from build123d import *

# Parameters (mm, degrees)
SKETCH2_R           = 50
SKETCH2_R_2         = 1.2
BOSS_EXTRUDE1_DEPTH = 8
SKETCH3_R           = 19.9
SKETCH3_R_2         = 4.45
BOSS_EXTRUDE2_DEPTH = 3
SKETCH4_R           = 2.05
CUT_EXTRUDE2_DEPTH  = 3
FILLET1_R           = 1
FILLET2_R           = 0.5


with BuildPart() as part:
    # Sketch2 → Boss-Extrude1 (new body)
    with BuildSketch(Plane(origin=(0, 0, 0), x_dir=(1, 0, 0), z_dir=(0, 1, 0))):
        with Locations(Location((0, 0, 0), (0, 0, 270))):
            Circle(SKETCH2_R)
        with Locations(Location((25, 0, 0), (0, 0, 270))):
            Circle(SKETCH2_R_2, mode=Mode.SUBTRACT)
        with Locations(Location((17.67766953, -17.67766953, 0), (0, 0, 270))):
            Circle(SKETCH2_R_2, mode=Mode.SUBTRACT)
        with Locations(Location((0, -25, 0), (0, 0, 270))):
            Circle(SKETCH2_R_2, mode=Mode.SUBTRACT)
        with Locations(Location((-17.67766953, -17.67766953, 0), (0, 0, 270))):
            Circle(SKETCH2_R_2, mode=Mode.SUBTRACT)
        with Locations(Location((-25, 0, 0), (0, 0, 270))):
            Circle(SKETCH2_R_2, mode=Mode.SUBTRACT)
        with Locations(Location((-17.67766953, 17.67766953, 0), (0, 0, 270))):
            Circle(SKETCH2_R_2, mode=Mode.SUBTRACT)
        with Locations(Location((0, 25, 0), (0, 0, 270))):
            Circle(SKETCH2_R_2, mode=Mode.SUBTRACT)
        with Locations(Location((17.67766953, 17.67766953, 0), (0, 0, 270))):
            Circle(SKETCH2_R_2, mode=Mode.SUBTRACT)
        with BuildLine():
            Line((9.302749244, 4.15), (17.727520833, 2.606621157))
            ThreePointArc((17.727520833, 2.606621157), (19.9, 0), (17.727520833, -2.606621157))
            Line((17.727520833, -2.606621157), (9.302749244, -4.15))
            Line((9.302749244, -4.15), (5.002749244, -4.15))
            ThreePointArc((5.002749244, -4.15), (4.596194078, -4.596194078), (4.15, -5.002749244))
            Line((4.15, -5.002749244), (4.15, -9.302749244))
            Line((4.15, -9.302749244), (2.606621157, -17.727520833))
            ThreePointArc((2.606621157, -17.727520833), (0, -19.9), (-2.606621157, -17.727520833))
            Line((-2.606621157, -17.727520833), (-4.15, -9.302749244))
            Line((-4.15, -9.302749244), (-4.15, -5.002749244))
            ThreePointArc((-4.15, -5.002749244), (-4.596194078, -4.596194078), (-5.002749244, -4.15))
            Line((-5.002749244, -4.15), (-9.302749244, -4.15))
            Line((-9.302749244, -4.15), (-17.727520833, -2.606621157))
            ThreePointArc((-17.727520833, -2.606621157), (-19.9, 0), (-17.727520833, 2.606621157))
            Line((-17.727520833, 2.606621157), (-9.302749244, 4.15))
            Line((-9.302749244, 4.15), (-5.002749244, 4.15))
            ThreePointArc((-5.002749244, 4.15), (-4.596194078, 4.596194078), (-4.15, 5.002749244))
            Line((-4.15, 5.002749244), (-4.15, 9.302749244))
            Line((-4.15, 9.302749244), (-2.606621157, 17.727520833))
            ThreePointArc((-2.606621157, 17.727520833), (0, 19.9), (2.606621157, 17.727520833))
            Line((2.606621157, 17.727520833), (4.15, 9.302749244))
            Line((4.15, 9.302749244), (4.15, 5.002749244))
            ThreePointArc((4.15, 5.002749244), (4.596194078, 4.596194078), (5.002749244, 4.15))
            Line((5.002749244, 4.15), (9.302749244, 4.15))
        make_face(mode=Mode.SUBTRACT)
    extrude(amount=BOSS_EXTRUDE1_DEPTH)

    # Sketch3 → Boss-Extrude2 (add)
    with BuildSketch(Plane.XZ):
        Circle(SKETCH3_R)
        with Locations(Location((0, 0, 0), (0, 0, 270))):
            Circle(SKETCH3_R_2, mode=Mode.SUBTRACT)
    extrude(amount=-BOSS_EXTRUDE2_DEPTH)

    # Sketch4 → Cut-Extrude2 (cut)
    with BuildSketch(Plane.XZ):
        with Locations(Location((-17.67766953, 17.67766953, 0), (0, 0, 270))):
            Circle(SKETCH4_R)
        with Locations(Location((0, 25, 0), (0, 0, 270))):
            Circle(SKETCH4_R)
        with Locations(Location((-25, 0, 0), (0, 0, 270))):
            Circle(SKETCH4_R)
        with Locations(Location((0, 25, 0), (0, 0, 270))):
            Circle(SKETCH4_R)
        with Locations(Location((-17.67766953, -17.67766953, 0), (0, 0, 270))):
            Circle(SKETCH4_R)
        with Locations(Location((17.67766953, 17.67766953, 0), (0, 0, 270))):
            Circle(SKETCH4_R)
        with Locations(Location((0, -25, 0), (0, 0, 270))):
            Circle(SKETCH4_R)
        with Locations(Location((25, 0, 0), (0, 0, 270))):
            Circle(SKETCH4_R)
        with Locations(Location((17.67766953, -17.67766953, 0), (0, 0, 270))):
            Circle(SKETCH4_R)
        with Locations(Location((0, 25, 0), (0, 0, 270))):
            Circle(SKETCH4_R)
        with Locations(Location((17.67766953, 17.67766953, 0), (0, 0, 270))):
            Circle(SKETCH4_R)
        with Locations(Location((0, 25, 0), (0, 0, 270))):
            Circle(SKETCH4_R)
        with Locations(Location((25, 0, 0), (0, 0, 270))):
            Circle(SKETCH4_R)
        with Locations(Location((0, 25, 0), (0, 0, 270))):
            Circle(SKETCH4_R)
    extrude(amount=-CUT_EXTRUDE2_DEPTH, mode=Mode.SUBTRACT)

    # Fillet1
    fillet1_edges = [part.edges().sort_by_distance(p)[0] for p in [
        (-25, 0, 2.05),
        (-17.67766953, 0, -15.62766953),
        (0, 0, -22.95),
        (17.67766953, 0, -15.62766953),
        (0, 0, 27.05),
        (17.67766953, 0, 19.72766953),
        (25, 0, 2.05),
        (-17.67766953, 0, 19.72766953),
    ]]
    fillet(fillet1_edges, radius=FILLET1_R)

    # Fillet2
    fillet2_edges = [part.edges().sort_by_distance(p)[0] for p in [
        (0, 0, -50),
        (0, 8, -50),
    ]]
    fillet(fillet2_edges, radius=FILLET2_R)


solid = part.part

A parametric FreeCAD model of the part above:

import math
import FreeCAD as App
import Part
import Sketcher

V = App.Vector
Q = App.Units.Quantity


def edges_at(feature, points):
    """Names of the edges that pass closest to the given points."""
    edges = feature.Shape.Edges
    near = lambda p: min(range(len(edges)), key=lambda i: edges[i].distToShape(Part.Vertex(*p))[0])
    return sorted({f"Edge{near(p) + 1}" for p in points})

doc = App.newDocument("Part")
body = doc.addObject("PartDesign::Body", "Body")

sketch1 = body.newObject("Sketcher::SketchObject", "Sketch")
sketch1.AttachmentSupport = (doc.getObject("XZ_Plane"), [""])
sketch1.MapMode = "FlatFace"
sketch1.addGeometry(Part.Circle(V(0, 0, 0), V(0, 0, 1), 50), False)
sketch1.addGeometry(Part.Circle(V(-17.7, -17.7, 0), V(0, 0, 1), 1.2), False)
sketch1.addGeometry(Part.Circle(V(0, -25, 0), V(0, 0, 1), 1.2), False)
sketch1.addGeometry(Part.Circle(V(-25, 0, 0), V(0, 0, 1), 1.2), False)
sketch1.addGeometry(Part.Circle(V(-17.7, 17.7, 0), V(0, 0, 1), 1.2), False)
sketch1.addGeometry(Part.Circle(V(17.7, -17.7, 0), V(0, 0, 1), 1.2), False)
sketch1.addGeometry(Part.Circle(V(25, 0, 0), V(0, 0, 1), 1.2), False)
sketch1.addGeometry(Part.LineSegment(V(5, -4.2, 0), V(9.3, -4.2, 0)), False)
sketch1.addGeometry(Part.LineSegment(V(9.3, -4.2, 0), V(17.7, -2.6, 0)), False)
sketch1.addGeometry(Part.ArcOfCircle(Part.Circle(V(17.2, 0, 0), V(0, 0, 1), 2.6), math.radians(-80), math.radians(80)), False)
sketch1.addGeometry(Part.LineSegment(V(17.7, 2.6, 0), V(9.3, 4.2, 0)), False)
sketch1.addGeometry(Part.LineSegment(V(9.3, 4.2, 0), V(5, 4.2, 0)), False)
sketch1.addGeometry(Part.ArcOfCircle(Part.Circle(V(0, 0, 0), V(0, 0, 1), 6.5), math.radians(39.68), math.radians(50.32)), False)
sketch1.addGeometry(Part.LineSegment(V(4.2, 5, 0), V(4.2, 9.3, 0)), False)
sketch1.addGeometry(Part.LineSegment(V(4.2, 9.3, 0), V(2.6, 17.7, 0)), False)
sketch1.addGeometry(Part.ArcOfCircle(Part.Circle(V(0, 17.2, 0), V(0, 0, 1), 2.6), math.radians(10), math.radians(170)), False)
sketch1.addGeometry(Part.LineSegment(V(-2.6, 17.7, 0), V(-4.2, 9.3, 0)), False)
sketch1.addGeometry(Part.LineSegment(V(-4.2, 9.3, 0), V(-4.2, 5, 0)), False)
sketch1.addGeometry(Part.ArcOfCircle(Part.Circle(V(0, 0, 0), V(0, 0, 1), 6.5), math.radians(129.68), math.radians(140.32)), False)
sketch1.addGeometry(Part.LineSegment(V(-5, 4.2, 0), V(-9.3, 4.2, 0)), False)
sketch1.addGeometry(Part.LineSegment(V(-9.3, 4.2, 0), V(-17.7, 2.6, 0)), False)
sketch1.addGeometry(Part.ArcOfCircle(Part.Circle(V(-17.2, 0, 0), V(0, 0, 1), 2.6), math.radians(100), math.radians(260)), False)
sketch1.addGeometry(Part.LineSegment(V(-17.7, -2.6, 0), V(-9.3, -4.2, 0)), False)
sketch1.addGeometry(Part.LineSegment(V(-9.3, -4.2, 0), V(-5, -4.2, 0)), False)
sketch1.addGeometry(Part.ArcOfCircle(Part.Circle(V(0, 0, 0), V(0, 0, 1), 6.5), math.radians(-140.32), math.radians(-129.68)), False)
sketch1.addGeometry(Part.LineSegment(V(-4.2, -5, 0), V(-4.2, -9.3, 0)), False)
sketch1.addGeometry(Part.LineSegment(V(-4.2, -9.3, 0), V(-2.6, -17.7, 0)), False)
sketch1.addGeometry(Part.ArcOfCircle(Part.Circle(V(0, -17.2, 0), V(0, 0, 1), 2.6), math.radians(-170), math.radians(-10)), False)
sketch1.addGeometry(Part.LineSegment(V(2.6, -17.7, 0), V(4.2, -9.3, 0)), False)
sketch1.addGeometry(Part.LineSegment(V(4.2, -9.3, 0), V(4.2, -5, 0)), False)
sketch1.addGeometry(Part.ArcOfCircle(Part.Circle(V(0, 0, 0), V(0, 0, 1), 6.5), math.radians(-50.32), math.radians(-39.68)), False)
sketch1.addGeometry(Part.Circle(V(0, 25, 0), V(0, 0, 1), 1.2), False)
sketch1.addGeometry(Part.Circle(V(17.7, 17.7, 0), V(0, 0, 1), 1.2), False)
sketch1.addConstraint(Sketcher.Constraint("Coincident", 7, 2, 8, 1))
sketch1.addConstraint(Sketcher.Constraint("Tangent", 8, 2, 9, 1))
sketch1.addConstraint(Sketcher.Constraint("Tangent", 9, 2, 10, 1))
sketch1.addConstraint(Sketcher.Constraint("Coincident", 10, 2, 11, 1))
sketch1.addConstraint(Sketcher.Constraint("Coincident", 11, 2, 12, 1))
sketch1.addConstraint(Sketcher.Constraint("Coincident", 12, 2, 13, 1))
sketch1.addConstraint(Sketcher.Constraint("Coincident", 13, 2, 14, 1))
sketch1.addConstraint(Sketcher.Constraint("Tangent", 14, 2, 15, 1))
sketch1.addConstraint(Sketcher.Constraint("Tangent", 15, 2, 16, 1))
sketch1.addConstraint(Sketcher.Constraint("Coincident", 16, 2, 17, 1))
sketch1.addConstraint(Sketcher.Constraint("Coincident", 17, 2, 18, 1))
sketch1.addConstraint(Sketcher.Constraint("Coincident", 18, 2, 19, 1))
sketch1.addConstraint(Sketcher.Constraint("Coincident", 19, 2, 20, 1))
sketch1.addConstraint(Sketcher.Constraint("Tangent", 20, 2, 21, 1))
sketch1.addConstraint(Sketcher.Constraint("Tangent", 21, 2, 22, 1))
sketch1.addConstraint(Sketcher.Constraint("Coincident", 22, 2, 23, 1))
sketch1.addConstraint(Sketcher.Constraint("Coincident", 23, 2, 24, 1))
sketch1.addConstraint(Sketcher.Constraint("Coincident", 24, 2, 25, 1))
sketch1.addConstraint(Sketcher.Constraint("Coincident", 25, 2, 26, 1))
sketch1.addConstraint(Sketcher.Constraint("Tangent", 26, 2, 27, 1))
sketch1.addConstraint(Sketcher.Constraint("Tangent", 27, 2, 28, 1))
sketch1.addConstraint(Sketcher.Constraint("Coincident", 28, 2, 29, 1))
sketch1.addConstraint(Sketcher.Constraint("Coincident", 29, 2, 30, 1))
sketch1.addConstraint(Sketcher.Constraint("Coincident", 30, 2, 7, 1))
sketch1.addConstraint(Sketcher.Constraint("Horizontal", 7))
sketch1.addConstraint(Sketcher.Constraint("Horizontal", 11))
sketch1.addConstraint(Sketcher.Constraint("Vertical", 13))
sketch1.addConstraint(Sketcher.Constraint("Vertical", 17))
sketch1.addConstraint(Sketcher.Constraint("Horizontal", 19))
sketch1.addConstraint(Sketcher.Constraint("Horizontal", 23))
sketch1.addConstraint(Sketcher.Constraint("Vertical", 25))
sketch1.addConstraint(Sketcher.Constraint("Vertical", 29))
sketch1.addConstraint(Sketcher.Constraint("Coincident", 0, 3, -1, 1))
sketch1.addConstraint(Sketcher.Constraint("Coincident", 12, 3, -1, 1))
sketch1.addConstraint(Sketcher.Constraint("Coincident", 18, 3, -1, 1))
sketch1.addConstraint(Sketcher.Constraint("Coincident", 24, 3, -1, 1))
sketch1.addConstraint(Sketcher.Constraint("Coincident", 30, 3, -1, 1))
sketch1.addConstraint(Sketcher.Constraint("Equal", 1, 2))
sketch1.addConstraint(Sketcher.Constraint("Equal", 2, 3))
sketch1.addConstraint(Sketcher.Constraint("Equal", 3, 4))
sketch1.addConstraint(Sketcher.Constraint("Equal", 4, 5))
sketch1.addConstraint(Sketcher.Constraint("Equal", 5, 6))
sketch1.addConstraint(Sketcher.Constraint("Equal", 9, 15))
sketch1.addConstraint(Sketcher.Constraint("Equal", 12, 18))
sketch1.addConstraint(Sketcher.Constraint("Equal", 15, 21))
sketch1.addConstraint(Sketcher.Constraint("Equal", 18, 24))
sketch1.addConstraint(Sketcher.Constraint("Equal", 21, 27))
sketch1.addConstraint(Sketcher.Constraint("Equal", 24, 30))
sketch1.addConstraint(Sketcher.Constraint("Equal", 6, 31))
sketch1.addConstraint(Sketcher.Constraint("Equal", 31, 32))
sketch1.addConstraint(Sketcher.Constraint("Symmetric", 4, 3, 5, 3, -1, 1))
sketch1.addConstraint(Sketcher.Constraint("Symmetric", 3, 3, 6, 3, -1, 1))
sketch1.addConstraint(Sketcher.Constraint("Symmetric", 9, 3, 21, 3, -1, 1))
sketch1.addConstraint(Sketcher.Constraint("Symmetric", 15, 3, 27, 3, -1, 1))
sketch1.addConstraint(Sketcher.Constraint("Symmetric", 2, 3, 31, 3, -1, 1))
sketch1.addConstraint(Sketcher.Constraint("Symmetric", 1, 3, 32, 3, -1, 1))
sketch1.addConstraint(Sketcher.Constraint("Symmetric", 7, 2, 19, 2, -1, 1))
sketch1.addConstraint(Sketcher.Constraint("Symmetric", 10, 2, 22, 2, -1, 1))
sketch1.addConstraint(Sketcher.Constraint("Symmetric", 13, 2, 25, 2, -1, 1))
sketch1.addConstraint(Sketcher.Constraint("Symmetric", 16, 2, 28, 2, -1, 1))
sketch1.addConstraint(Sketcher.Constraint("Symmetric", 1, 3, 5, 3, -2))
sketch1.addConstraint(Sketcher.Constraint("Symmetric", 14, 2, 15, 2, -2))
sketch1.addConstraint(Sketcher.Constraint("Symmetric", 10, 2, 19, 2, -2))
sketch1.addConstraint(Sketcher.Constraint("PointOnObject", 2, 3, -2))
sketch1.addConstraint(Sketcher.Constraint("PointOnObject", 3, 3, -1))
sketch1.addConstraint(Sketcher.Constraint("PointOnObject", 9, 3, -1))
sketch1.addConstraint(Sketcher.Constraint("Perpendicular", 8, 14))
sketch1.addConstraint(Sketcher.Constraint("Horizontal", 13, 2, 16, 2))
sketch1.addConstraint(Sketcher.Constraint("Equal", 23, 13))
sketch1.addConstraint(Sketcher.Constraint("Equal", 10, 14))
sketch1.addConstraint(Sketcher.Constraint("Diameter", 0, Q("100 mm")))
sketch1.addConstraint(Sketcher.Constraint("Diameter", 1, Q("2.4 mm")))
sketch1.addConstraint(Sketcher.Constraint("Radius", 12, Q("6.5 mm")))
sketch1.addConstraint(Sketcher.Constraint("Radius", 9, Q("2.65 mm")))
sketch1.addConstraint(Sketcher.Constraint("DistanceX", 7, 1, 7, 2, Q("4.3 mm")))
sketch1.addConstraint(Sketcher.Constraint("DistanceY", 2, 3, -1, 1, Q("25 mm")))
sketch1.addConstraint(Sketcher.Constraint("DistanceX", 3, 3, -1, 1, Q("25 mm")))
sketch1.addConstraint(Sketcher.Constraint("DistanceY", 7, 2, 10, 2, Q("8.3 mm")))
sketch1.addConstraint(Sketcher.Constraint("DistanceX", -1, 1, 9, 3, Q("17.25 mm")))
sketch1.addConstraint(Sketcher.Constraint("DistanceX", 1, 3, -1, 1, Q("17.67767 mm")))
sketch1.addConstraint(Sketcher.Constraint("DistanceY", 1, 3, -1, 1, Q("17.67767 mm")))
pad1 = body.newObject("PartDesign::Pad", "Pad")
pad1.Profile = sketch1
pad1.Length = 8
pad1.Reversed = True

sketch2 = body.newObject("Sketcher::SketchObject", "Sketch001")
sketch2.AttachmentSupport = (doc.getObject("XZ_Plane"), [""])
sketch2.MapMode = "FlatFace"
sketch2.addGeometry(Part.Circle(V(0, 0, 0), V(0, 0, 1), 19.9), False)
sketch2.addGeometry(Part.Circle(V(0, 0, 0), V(0, 0, 1), 4.5), False)
sketch2.addConstraint(Sketcher.Constraint("Coincident", 0, 3, -1, 1))
sketch2.addConstraint(Sketcher.Constraint("Coincident", 1, 3, -1, 1))
sketch2.addConstraint(Sketcher.Constraint("Diameter", 0, Q("39.8 mm")))
sketch2.addConstraint(Sketcher.Constraint("Diameter", 1, Q("8.9 mm")))
pad2 = body.newObject("PartDesign::Pad", "Pad001")
pad2.Profile = sketch2
pad2.Length = 3
pad2.Reversed = True

sketch3 = body.newObject("Sketcher::SketchObject", "Sketch002")
sketch3.AttachmentSupport = (doc.getObject("XZ_Plane"), [""])
sketch3.MapMode = "FlatFace"
sketch3.addGeometry(Part.Circle(V(-17.7, 17.7, 0), V(0, 0, 1), 2), False)
sketch3.addGeometry(Part.Circle(V(0, 25, 0), V(0, 0, 1), 2), False)
sketch3.addGeometry(Part.Circle(V(-25, 0, 0), V(0, 0, 1), 2), False)
sketch3.addGeometry(Part.Circle(V(-17.7, -17.7, 0), V(0, 0, 1), 2), False)
sketch3.addGeometry(Part.Circle(V(17.7, 17.7, 0), V(0, 0, 1), 2), False)
sketch3.addGeometry(Part.Circle(V(0, -25, 0), V(0, 0, 1), 2), False)
sketch3.addGeometry(Part.Circle(V(25, 0, 0), V(0, 0, 1), 2), False)
sketch3.addGeometry(Part.Circle(V(17.7, -17.7, 0), V(0, 0, 1), 2), False)
sketch3.addConstraint(Sketcher.Constraint("Equal", 0, 1))
sketch3.addConstraint(Sketcher.Constraint("Equal", 1, 2))
sketch3.addConstraint(Sketcher.Constraint("Equal", 2, 3))
sketch3.addConstraint(Sketcher.Constraint("Equal", 3, 4))
sketch3.addConstraint(Sketcher.Constraint("Equal", 4, 5))
sketch3.addConstraint(Sketcher.Constraint("Equal", 5, 6))
sketch3.addConstraint(Sketcher.Constraint("Equal", 6, 7))
sketch3.addConstraint(Sketcher.Constraint("Symmetric", 3, 3, 4, 3, -1, 1))
sketch3.addConstraint(Sketcher.Constraint("Symmetric", 1, 3, 5, 3, -1, 1))
sketch3.addConstraint(Sketcher.Constraint("Symmetric", 2, 3, 6, 3, -1, 1))
sketch3.addConstraint(Sketcher.Constraint("Symmetric", 0, 3, 7, 3, -1, 1))
sketch3.addConstraint(Sketcher.Constraint("Symmetric", 0, 3, 4, 3, -2))
sketch3.addConstraint(Sketcher.Constraint("PointOnObject", 1, 3, -2))
sketch3.addConstraint(Sketcher.Constraint("PointOnObject", 2, 3, -1))
sketch3.addConstraint(Sketcher.Constraint("Diameter", 0, Q("4.1 mm")))
sketch3.addConstraint(Sketcher.Constraint("DistanceY", -1, 1, 1, 3, Q("25 mm")))
sketch3.addConstraint(Sketcher.Constraint("DistanceX", 2, 3, -1, 1, Q("25 mm")))
sketch3.addConstraint(Sketcher.Constraint("DistanceX", 0, 3, -1, 1, Q("17.67767 mm")))
sketch3.addConstraint(Sketcher.Constraint("DistanceY", -1, 1, 0, 3, Q("17.67767 mm")))
pocket1 = body.newObject("PartDesign::Pocket", "Pocket")
pocket1.Profile = sketch3
pocket1.Length = 3
doc.recompute()

fillet = body.newObject("PartDesign::Fillet", "Fillet")
fillet.Base = (pocket1, edges_at(pocket1, [
    (-25, 0, 2.05),
    (-17.678, 0, -15.628),
    (0, 0, -22.95),
    (17.678, 0, -15.628),
    (0, 0, 27.05),
    (17.678, 0, 19.728),
    (25, 0, 2.05),
    (-17.678, 0, 19.728),
]))
fillet.Radius = 1
doc.recompute()

fillet2 = body.newObject("PartDesign::Fillet", "Fillet001")
fillet2.Base = (fillet, edges_at(fillet, [(0, 0, -50), (0, 8, -50)]))
fillet2.Radius = 0.5

doc.recompute()
